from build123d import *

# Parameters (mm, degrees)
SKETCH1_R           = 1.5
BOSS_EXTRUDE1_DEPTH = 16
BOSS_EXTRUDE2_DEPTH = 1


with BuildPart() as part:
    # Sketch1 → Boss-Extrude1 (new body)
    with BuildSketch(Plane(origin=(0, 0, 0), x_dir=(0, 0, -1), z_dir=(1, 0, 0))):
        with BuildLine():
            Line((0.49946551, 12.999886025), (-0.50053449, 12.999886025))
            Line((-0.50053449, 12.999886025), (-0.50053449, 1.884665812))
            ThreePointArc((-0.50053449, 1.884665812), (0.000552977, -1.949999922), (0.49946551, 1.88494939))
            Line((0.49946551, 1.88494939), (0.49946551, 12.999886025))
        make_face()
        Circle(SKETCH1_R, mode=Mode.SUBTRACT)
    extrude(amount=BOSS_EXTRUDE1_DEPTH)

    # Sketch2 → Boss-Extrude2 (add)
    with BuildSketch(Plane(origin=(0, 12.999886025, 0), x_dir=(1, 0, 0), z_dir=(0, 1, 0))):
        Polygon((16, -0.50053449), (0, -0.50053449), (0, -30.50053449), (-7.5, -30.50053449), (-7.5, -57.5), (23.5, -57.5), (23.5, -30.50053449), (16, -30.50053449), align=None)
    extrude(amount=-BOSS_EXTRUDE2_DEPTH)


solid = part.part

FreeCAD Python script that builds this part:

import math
import FreeCAD as App
import Part
import Sketcher
from FreeCAD import Vector

doc = App.newDocument("Part")
params = doc.addObject("Spreadsheet::Sheet", "Params")
for row, (alias, value) in enumerate([
    ("sketch1_diameter", "3 mm"),
    ("sketch1_height", "1 mm"),
    ("sketch1_radius", "1.95 mm"),
    ("pad1_length", "16 mm"),
    ("sketch2_width", "16 mm"),
    ("sketch2_width2", "31 mm"),
    ("sketch2_height", "30 mm"),
    ("pad2_length", "1 mm"),
], start=1):
    params.set(f"A{row}", alias)
    params.set(f"B{row}", "=" + value)
    params.setAlias(f"B{row}", alias)

body = doc.addObject("PartDesign::Body", "Body")

# Sketch on YZ plane
sketch1 = body.newObject("Sketcher::SketchObject", "Sketch")
sketch1.AttachmentSupport = (doc.getObject("YZ_Plane"), [""])
sketch1.MapMode = "FlatFace"
sketch1.addGeometry(Part.LineSegment(Vector(13, -0.5, 0), Vector(13, 0.5, 0)), False)
sketch1.addGeometry(Part.LineSegment(Vector(13, 0.5, 0), Vector(1.9, 0.5, 0)), False)
sketch1.addGeometry(Part.ArcOfCircle(Part.Circle(Vector(0, 0, 0), Vector(0, 0, 1), 1.9), math.radians(15), math.radians(345)), False)
sketch1.addGeometry(Part.LineSegment(Vector(1.9, -0.5, 0), Vector(13, -0.5, 0)), False)
sketch1.addGeometry(Part.Circle(Vector(0, 0, 0), Vector(0, 0, 1), 1.5), False)
sketch1.addConstraint(Sketcher.Constraint("Coincident", 0, 2, 1, 1))
sketch1.addConstraint(Sketcher.Constraint("Coincident", 1, 2, 2, 1))
sketch1.addConstraint(Sketcher.Constraint("Coincident", 2, 2, 3, 1))
sketch1.addConstraint(Sketcher.Constraint("Coincident", 3, 2, 0, 1))
sketch1.addConstraint(Sketcher.Constraint("Vertical", 0))
sketch1.addConstraint(Sketcher.Constraint("Horizontal", 1))
sketch1.addConstraint(Sketcher.Constraint("Horizontal", 3))
sketch1.addConstraint(Sketcher.Constraint("Coincident", 2, 3, -1, 1))
sketch1.addConstraint(Sketcher.Constraint("Coincident", 4, 3, -1, 1))
sketch1.addConstraint(Sketcher.Constraint("Diameter", 4, 3.0))
sketch1.addConstraint(Sketcher.Constraint("DistanceY", 0, 1, 0, 2, 1.0))
sketch1.addConstraint(Sketcher.Constraint("Radius", 2, 1.95))
sketch1.addConstraint(Sketcher.Constraint("DistanceX", 1, 2, 1, 1, 11.11522))
sketch1.addConstraint(Sketcher.Constraint("DistanceX", 3, 1, 3, 2, 11.114937))
sketch1.setExpression("Constraints[9]", "Params.sketch1_diameter")
sketch1.setExpression("Constraints[10]", "Params.sketch1_height")
sketch1.setExpression("Constraints[11]", "Params.sketch1_radius")
pad1 = body.newObject("PartDesign::Pad", "Pad")
pad1.Profile = sketch1
pad1.setExpression("Length", "Params.pad1_length")

# Sketch on XZ plane
sketch2 = body.newObject("Sketcher::SketchObject", "Sketch001")
sketch2.AttachmentSupport = (doc.getObject("XZ_Plane"), [""])
sketch2.MapMode = "FlatFace"
sketch2.AttachmentOffset = App.Placement(Vector(0, 0, -12.999886), App.Rotation())
sketch2.addGeometry(Part.LineSegment(Vector(16, 1, 0), Vector(0, 1, 0)), False)
sketch2.addGeometry(Part.LineSegment(Vector(0, 1, 0), Vector(0, 31, 0)), False)
sketch2.addGeometry(Part.LineSegment(Vector(0, 31, 0), Vector(-8, 31, 0)), False)
sketch2.addGeometry(Part.LineSegment(Vector(-8, 31, 0), Vector(-8, 58, 0)), False)
sketch2.addGeometry(Part.LineSegment(Vector(-8, 58, 0), Vector(24, 58, 0)), False)
sketch2.addGeometry(Part.LineSegment(Vector(24, 58, 0), Vector(24, 31, 0)), False)
sketch2.addGeometry(Part.LineSegment(Vector(24, 31, 0), Vector(16, 31, 0)), False)
sketch2.addGeometry(Part.LineSegment(Vector(16, 31, 0), Vector(16, 1, 0)), False)
sketch2.addConstraint(Sketcher.Constraint("Coincident", 0, 2, 1, 1))
sketch2.addConstraint(Sketcher.Constraint("Coincident", 1, 2, 2, 1))
sketch2.addConstraint(Sketcher.Constraint("Coincident", 2, 2, 3, 1))
sketch2.addConstraint(Sketcher.Constraint("Coincident", 3, 2, 4, 1))
sketch2.addConstraint(Sketcher.Constraint("Coincident", 4, 2, 5, 1))
sketch2.addConstraint(Sketcher.Constraint("Coincident", 5, 2, 6, 1))
sketch2.addConstraint(Sketcher.Constraint("Coincident", 6, 2, 7, 1))
sketch2.addConstraint(Sketcher.Constraint("Coincident", 7, 2, 0, 1))
sketch2.addConstraint(Sketcher.Constraint("Horizontal", 0))
sketch2.addConstraint(Sketcher.Constraint("Vertical", 1))
sketch2.addConstraint(Sketcher.Constraint("Horizontal", 2))
sketch2.addConstraint(Sketcher.Constraint("Vertical", 3))
sketch2.addConstraint(Sketcher.Constraint("Horizontal", 4))
sketch2.addConstraint(Sketcher.Constraint("Vertical", 5))
sketch2.addConstraint(Sketcher.Constraint("Horizontal", 6))
sketch2.addConstraint(Sketcher.Constraint("Vertical", 7))
sketch2.addConstraint(Sketcher.Constraint("PointOnObject", 0, 2, -2))
sketch2.addConstraint(Sketcher.Constraint("Horizontal", 2, 2, 5, 2))
sketch2.addConstraint(Sketcher.Constraint("Equal", 2, 6))
sketch2.addConstraint(Sketcher.Constraint("DistanceX", 0, 2, 0, 1, 16.0))
sketch2.addConstraint(Sketcher.Constraint("DistanceX", 4, 1, 4, 2, 31.0))
sketch2.addConstraint(Sketcher.Constraint("DistanceY", 1, 1, 1, 2, 30.0))
sketch2.addConstraint(Sketcher.Constraint("DistanceY", -1, 1, 3, 2, 57.5))
sketch2.addConstraint(Sketcher.Constraint("DistanceY", 3, 1, 3, 2, 26.999466))
sketch2.setExpression("Constraints[19]", "Params.sketch2_width")
sketch2.setExpression("Constraints[20]", "Params.sketch2_width2")
sketch2.setExpression("Constraints[21]", "Params.sketch2_height")
pad2 = body.newObject("PartDesign::Pad", "Pad001")
pad2.Profile = sketch2
pad2.setExpression("Length", "Params.pad2_length")

doc.recompute()
